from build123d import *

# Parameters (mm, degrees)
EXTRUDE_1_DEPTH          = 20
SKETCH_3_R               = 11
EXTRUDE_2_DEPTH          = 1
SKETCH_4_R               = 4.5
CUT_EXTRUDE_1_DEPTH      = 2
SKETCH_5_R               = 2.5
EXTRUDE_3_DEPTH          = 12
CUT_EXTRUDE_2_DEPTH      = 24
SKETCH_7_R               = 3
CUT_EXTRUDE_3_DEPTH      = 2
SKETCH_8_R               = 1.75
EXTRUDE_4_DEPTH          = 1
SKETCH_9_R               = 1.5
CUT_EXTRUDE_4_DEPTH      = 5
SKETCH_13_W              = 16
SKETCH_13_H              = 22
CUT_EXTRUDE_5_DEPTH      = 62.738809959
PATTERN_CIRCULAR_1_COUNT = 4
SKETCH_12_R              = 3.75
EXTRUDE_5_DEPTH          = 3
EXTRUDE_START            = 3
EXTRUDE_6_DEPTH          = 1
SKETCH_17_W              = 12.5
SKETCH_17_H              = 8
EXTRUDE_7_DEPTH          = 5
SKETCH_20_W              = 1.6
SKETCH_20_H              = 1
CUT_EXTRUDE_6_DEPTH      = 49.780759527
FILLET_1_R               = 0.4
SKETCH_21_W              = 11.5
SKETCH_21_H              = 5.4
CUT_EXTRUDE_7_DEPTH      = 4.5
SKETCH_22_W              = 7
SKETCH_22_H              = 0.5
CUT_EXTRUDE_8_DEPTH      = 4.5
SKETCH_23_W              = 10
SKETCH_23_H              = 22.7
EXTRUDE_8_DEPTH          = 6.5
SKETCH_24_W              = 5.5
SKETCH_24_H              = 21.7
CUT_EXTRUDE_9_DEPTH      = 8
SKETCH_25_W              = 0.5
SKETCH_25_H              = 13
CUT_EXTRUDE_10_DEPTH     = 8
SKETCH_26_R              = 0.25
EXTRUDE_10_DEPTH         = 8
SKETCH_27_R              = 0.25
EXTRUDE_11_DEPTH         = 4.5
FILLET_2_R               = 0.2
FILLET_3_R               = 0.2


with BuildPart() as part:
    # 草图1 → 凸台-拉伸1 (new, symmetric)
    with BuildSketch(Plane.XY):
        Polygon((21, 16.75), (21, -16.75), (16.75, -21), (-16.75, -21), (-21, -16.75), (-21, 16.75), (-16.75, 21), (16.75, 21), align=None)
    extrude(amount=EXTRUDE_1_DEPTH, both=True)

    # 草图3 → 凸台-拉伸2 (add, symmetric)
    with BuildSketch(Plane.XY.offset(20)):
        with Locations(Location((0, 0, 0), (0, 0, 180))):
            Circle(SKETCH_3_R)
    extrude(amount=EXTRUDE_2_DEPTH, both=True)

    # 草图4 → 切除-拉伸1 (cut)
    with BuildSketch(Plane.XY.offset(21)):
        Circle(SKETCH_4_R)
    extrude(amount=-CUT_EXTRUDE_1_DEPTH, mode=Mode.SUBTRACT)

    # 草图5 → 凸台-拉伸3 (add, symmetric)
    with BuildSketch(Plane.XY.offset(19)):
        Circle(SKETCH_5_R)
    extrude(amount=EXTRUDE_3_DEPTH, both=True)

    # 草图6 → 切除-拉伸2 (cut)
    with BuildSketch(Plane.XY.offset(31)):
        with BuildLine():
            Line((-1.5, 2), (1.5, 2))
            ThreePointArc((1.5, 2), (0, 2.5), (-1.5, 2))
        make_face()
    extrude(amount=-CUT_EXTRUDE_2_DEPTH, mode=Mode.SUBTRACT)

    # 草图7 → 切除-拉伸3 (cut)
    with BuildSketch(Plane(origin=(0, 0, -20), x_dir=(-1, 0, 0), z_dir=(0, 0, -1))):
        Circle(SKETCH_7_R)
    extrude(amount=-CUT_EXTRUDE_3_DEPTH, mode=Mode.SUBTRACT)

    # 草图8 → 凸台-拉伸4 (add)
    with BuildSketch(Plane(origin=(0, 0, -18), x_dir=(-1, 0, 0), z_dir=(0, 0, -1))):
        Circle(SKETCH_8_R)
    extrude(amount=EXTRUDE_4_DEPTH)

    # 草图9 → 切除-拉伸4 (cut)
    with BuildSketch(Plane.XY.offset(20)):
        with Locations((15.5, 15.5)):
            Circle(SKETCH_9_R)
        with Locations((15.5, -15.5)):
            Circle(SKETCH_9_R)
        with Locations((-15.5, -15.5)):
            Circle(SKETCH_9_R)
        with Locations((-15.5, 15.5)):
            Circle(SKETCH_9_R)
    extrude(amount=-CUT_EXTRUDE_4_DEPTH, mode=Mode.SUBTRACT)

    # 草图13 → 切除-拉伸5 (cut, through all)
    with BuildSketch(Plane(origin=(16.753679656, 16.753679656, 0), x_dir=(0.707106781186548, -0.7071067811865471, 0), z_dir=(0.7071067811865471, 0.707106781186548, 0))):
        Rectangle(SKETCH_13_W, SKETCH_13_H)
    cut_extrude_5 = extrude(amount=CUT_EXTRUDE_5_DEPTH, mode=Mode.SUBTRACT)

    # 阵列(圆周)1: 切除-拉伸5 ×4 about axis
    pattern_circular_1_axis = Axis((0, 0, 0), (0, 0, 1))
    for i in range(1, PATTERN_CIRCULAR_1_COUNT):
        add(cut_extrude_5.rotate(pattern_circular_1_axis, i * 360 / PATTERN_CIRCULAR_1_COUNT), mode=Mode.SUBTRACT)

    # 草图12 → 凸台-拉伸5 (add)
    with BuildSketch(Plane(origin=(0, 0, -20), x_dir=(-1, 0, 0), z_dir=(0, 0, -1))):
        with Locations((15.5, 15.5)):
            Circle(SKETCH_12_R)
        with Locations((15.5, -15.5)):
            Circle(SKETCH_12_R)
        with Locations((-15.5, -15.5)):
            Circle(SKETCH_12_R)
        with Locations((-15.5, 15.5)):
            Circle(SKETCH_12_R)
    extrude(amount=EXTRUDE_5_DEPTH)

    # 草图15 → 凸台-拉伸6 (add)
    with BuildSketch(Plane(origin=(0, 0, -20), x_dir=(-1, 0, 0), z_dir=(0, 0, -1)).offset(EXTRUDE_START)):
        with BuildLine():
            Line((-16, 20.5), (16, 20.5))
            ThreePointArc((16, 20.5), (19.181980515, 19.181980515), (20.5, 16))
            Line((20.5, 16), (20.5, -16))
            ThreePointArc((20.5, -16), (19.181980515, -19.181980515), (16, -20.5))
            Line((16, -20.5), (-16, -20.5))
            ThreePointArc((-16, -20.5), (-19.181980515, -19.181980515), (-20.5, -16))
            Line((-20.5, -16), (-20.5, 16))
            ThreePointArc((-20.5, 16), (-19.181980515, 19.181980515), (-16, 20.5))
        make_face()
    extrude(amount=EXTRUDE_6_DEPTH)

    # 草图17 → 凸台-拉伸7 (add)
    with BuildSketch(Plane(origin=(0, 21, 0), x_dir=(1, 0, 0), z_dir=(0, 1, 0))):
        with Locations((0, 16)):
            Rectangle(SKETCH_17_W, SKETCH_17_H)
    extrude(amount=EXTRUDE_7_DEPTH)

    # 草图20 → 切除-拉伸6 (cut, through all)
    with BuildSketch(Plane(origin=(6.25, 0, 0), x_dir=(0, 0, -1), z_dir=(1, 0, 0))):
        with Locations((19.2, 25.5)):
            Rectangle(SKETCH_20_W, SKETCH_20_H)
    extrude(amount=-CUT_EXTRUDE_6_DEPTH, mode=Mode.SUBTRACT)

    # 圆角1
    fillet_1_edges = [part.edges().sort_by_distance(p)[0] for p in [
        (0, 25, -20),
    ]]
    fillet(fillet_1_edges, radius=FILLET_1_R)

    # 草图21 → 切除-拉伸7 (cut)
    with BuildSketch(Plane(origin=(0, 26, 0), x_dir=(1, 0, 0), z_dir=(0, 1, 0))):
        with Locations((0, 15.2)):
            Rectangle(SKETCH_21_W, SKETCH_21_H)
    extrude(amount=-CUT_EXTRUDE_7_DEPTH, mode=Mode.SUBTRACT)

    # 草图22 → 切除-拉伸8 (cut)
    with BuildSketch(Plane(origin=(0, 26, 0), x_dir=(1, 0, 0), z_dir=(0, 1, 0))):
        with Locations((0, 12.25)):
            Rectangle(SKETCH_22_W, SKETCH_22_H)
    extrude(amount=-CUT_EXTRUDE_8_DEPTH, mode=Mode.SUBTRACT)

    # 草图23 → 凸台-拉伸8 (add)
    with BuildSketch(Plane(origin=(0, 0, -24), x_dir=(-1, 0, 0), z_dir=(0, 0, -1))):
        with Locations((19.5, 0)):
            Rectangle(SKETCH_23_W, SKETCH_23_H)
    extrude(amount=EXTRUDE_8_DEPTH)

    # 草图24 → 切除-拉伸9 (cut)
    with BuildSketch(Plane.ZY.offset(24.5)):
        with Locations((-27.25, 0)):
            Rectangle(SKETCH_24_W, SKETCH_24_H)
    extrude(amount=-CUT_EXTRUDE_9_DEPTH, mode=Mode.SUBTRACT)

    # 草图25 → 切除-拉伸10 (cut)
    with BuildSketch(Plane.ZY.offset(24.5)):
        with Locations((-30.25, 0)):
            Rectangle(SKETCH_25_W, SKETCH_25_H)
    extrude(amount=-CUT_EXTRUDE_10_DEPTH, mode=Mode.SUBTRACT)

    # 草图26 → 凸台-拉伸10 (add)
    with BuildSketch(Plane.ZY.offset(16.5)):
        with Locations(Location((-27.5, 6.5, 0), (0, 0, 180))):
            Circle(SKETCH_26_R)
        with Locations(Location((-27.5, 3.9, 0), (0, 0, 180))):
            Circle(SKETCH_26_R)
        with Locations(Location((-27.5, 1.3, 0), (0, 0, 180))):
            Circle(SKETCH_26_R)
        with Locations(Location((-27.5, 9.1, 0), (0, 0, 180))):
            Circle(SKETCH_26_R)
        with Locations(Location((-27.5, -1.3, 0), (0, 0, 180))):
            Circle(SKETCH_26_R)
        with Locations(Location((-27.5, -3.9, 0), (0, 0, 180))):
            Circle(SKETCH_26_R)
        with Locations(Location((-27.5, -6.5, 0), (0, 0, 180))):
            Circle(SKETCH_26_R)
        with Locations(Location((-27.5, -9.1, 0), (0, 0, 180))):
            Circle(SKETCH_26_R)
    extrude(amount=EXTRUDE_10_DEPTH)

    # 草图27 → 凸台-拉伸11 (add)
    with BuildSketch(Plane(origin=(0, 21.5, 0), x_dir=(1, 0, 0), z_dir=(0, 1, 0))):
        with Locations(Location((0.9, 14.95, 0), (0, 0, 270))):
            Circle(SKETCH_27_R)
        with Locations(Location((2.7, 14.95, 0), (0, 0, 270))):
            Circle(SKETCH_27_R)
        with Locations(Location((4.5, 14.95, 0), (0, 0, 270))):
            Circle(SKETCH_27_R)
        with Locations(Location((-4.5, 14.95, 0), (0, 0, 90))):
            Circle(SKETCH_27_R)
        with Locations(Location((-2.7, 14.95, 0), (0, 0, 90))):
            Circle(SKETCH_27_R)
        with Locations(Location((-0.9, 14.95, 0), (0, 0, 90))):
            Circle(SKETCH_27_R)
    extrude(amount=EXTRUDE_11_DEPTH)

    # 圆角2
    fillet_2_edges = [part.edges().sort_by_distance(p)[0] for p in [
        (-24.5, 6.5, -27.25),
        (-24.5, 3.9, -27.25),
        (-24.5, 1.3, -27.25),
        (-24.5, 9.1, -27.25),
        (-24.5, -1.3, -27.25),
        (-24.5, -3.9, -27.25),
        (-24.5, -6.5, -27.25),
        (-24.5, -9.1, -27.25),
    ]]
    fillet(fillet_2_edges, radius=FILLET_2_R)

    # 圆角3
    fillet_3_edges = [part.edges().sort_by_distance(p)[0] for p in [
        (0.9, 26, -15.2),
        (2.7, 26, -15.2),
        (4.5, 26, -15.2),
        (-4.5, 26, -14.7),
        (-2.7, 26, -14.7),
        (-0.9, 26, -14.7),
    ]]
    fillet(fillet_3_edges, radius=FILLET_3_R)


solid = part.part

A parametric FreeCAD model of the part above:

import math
import FreeCAD as App
import Part
import Sketcher
from FreeCAD import Vector


def edges_at(feature, points):
    """Names of the edges that pass closest to the given points."""
    edges = feature.Shape.Edges
    near = lambda p: min(range(len(edges)), key=lambda i: edges[i].distToShape(Part.Vertex(*p))[0])
    return sorted({f"Edge{near(p) + 1}" for p in points})

doc = App.newDocument("Part")
body = doc.addObject("PartDesign::Body", "Body")

# Sketch on XY plane
sketch1 = body.newObject("Sketcher::SketchObject", "Sketch")
sketch1.AttachmentSupport = (doc.getObject("XY_Plane"), [""])
sketch1.MapMode = "FlatFace"
sketch1.addGeometry(Part.LineSegment(Vector(21, -17, 0), Vector(21, 17, 0)), False)
sketch1.addGeometry(Part.LineSegment(Vector(21, 17, 0), Vector(17, 21, 0)), False)
sketch1.addGeometry(Part.LineSegment(Vector(17, 21, 0), Vector(-17, 21, 0)), False)
sketch1.addGeometry(Part.LineSegment(Vector(-17, 21, 0), Vector(-21, 17, 0)), False)
sketch1.addGeometry(Part.LineSegment(Vector(-21, 17, 0), Vector(-21, -17, 0)), False)
sketch1.addGeometry(Part.LineSegment(Vector(-21, -17, 0), Vector(-17, -21, 0)), False)
sketch1.addGeometry(Part.LineSegment(Vector(-17, -21, 0), Vector(17, -21, 0)), False)
sketch1.addGeometry(Part.LineSegment(Vector(17, -21, 0), Vector(21, -17, 0)), False)
sketch1.addConstraint(Sketcher.Constraint("Coincident", 0, 2, 1, 1))
sketch1.addConstraint(Sketcher.Constraint("Coincident", 1, 2, 2, 1))
sketch1.addConstraint(Sketcher.Constraint("Coincident", 2, 2, 3, 1))
sketch1.addConstraint(Sketcher.Constraint("Coincident", 3, 2, 4, 1))
sketch1.addConstraint(Sketcher.Constraint("Coincident", 4, 2, 5, 1))
sketch1.addConstraint(Sketcher.Constraint("Coincident", 5, 2, 6, 1))
sketch1.addConstraint(Sketcher.Constraint("Coincident", 6, 2, 7, 1))
sketch1.addConstraint(Sketcher.Constraint("Coincident", 7, 2, 0, 1))
sketch1.addConstraint(Sketcher.Constraint("Vertical", 0))
sketch1.addConstraint(Sketcher.Constraint("Horizontal", 2))
sketch1.addConstraint(Sketcher.Constraint("Vertical", 4))
sketch1.addConstraint(Sketcher.Constraint("Horizontal", 6))
sketch1.addConstraint(Sketcher.Constraint("Symmetric", 0, 2, 4, 2, -1, 1))
sketch1.addConstraint(Sketcher.Constraint("Symmetric", 1, 2, 5, 2, -1, 1))
sketch1.addConstraint(Sketcher.Constraint("Perpendicular", 1, 3))
sketch1.addConstraint(Sketcher.Constraint("Perpendicular", 5, 7))
sketch1.addConstraint(Sketcher.Constraint("Horizontal", 0, 2, 3, 2))
sketch1.addConstraint(Sketcher.Constraint("Horizontal", 4, 2, 7, 2))
sketch1.addConstraint(Sketcher.Constraint("Vertical", 2, 2, 5, 2))
sketch1.addConstraint(Sketcher.Constraint("Equal", 6, 0))
sketch1.addConstraint(Sketcher.Constraint("DistanceX", 2, 2, 2, 1, 33.5))
sketch1.addConstraint(Sketcher.Constraint("DistanceX", -1, 1, 0, 2, 21.0))
pad1 = body.newObject("PartDesign::Pad", "Pad")
pad1.Profile = sketch1
pad1.Length = 40
pad1.Midplane = True

# Sketch on XY plane
sketch2 = body.newObject("Sketcher::SketchObject", "Sketch001")
sketch2.AttachmentSupport = (doc.getObject("XY_Plane"), [""])
sketch2.MapMode = "FlatFace"
sketch2.AttachmentOffset = App.Placement(Vector(0, 0, 20), App.Rotation())
sketch2.addGeometry(Part.Circle(Vector(0, 0, 0), Vector(0, 0, 1), 11), False)
sketch2.addConstraint(Sketcher.Constraint("Coincident", 0, 3, -1, 1))
sketch2.addConstraint(Sketcher.Constraint("Diameter", 0, 22.0))
pad2 = body.newObject("PartDesign::Pad", "Pad001")
pad2.Profile = sketch2
pad2.Length = 2
pad2.Midplane = True

# Sketch on XY plane
sketch3 = body.newObject("Sketcher::SketchObject", "Sketch002")
sketch3.AttachmentSupport = (doc.getObject("XY_Plane"), [""])
sketch3.MapMode = "FlatFace"
sketch3.AttachmentOffset = App.Placement(Vector(0, 0, 21), App.Rotation())
sketch3.addGeometry(Part.Circle(Vector(0, 0, 0), Vector(0, 0, 1), 4.5), False)
sketch3.addConstraint(Sketcher.Constraint("Coincident", 0, 3, -1, 1))
sketch3.addConstraint(Sketcher.Constraint("Diameter", 0, 9.0))
pocket1 = body.newObject("PartDesign::Pocket", "Pocket")
pocket1.Profile = sketch3
pocket1.Length = 2

# Sketch on XY plane
sketch4 = body.newObject("Sketcher::SketchObject", "Sketch003")
sketch4.AttachmentSupport = (doc.getObject("XY_Plane"), [""])
sketch4.MapMode = "FlatFace"
sketch4.AttachmentOffset = App.Placement(Vector(0, 0, 19), App.Rotation())
sketch4.addGeometry(Part.Circle(Vector(0, 0, 0), Vector(0, 0, 1), 2.5), False)
sketch4.addConstraint(Sketcher.Constraint("Coincident", 0, 3, -1, 1))
sketch4.addConstraint(Sketcher.Constraint("Diameter", 0, 5.0))
pad3 = body.newObject("PartDesign::Pad", "Pad002")
pad3.Profile = sketch4
pad3.Length = 24
pad3.Midplane = True

# Sketch on XY plane
sketch5 = body.newObject("Sketcher::SketchObject", "Sketch004")
sketch5.AttachmentSupport = (doc.getObject("XY_Plane"), [""])
sketch5.MapMode = "FlatFace"
sketch5.AttachmentOffset = App.Placement(Vector(0, 0, 31), App.Rotation())
sketch5.addGeometry(Part.LineSegment(Vector(-1.5, 2, 0), Vector(1.5, 2, 0)), False)
sketch5.addGeometry(Part.ArcOfCircle(Part.Circle(Vector(0, 0, 0), Vector(0, 0, 1), 2.5), math.radians(53), math.radians(127)), False)
sketch5.addConstraint(Sketcher.Constraint("Coincident", 0, 1, 1, 2))
sketch5.addConstraint(Sketcher.Constraint("Coincident", 1, 1, 0, 2))
sketch5.addConstraint(Sketcher.Constraint("Horizontal", 0))
sketch5.addConstraint(Sketcher.Constraint("Coincident", 1, 3, -1, 1))
sketch5.addConstraint(Sketcher.Constraint("Radius", 1, 2.5))
sketch5.addConstraint(Sketcher.Constraint("DistanceX", 0, 1, 0, 2, 3.0))
pocket2 = body.newObject("PartDesign::Pocket", "Pocket001")
pocket2.Profile = sketch5
pocket2.Length = 24

# Sketch on XY plane
sketch6 = body.newObject("Sketcher::SketchObject", "Sketch005")
sketch6.AttachmentSupport = (doc.getObject("XY_Plane"), [""])
sketch6.MapMode = "FlatFace"
sketch6.AttachmentOffset = App.Placement(Vector(0, 0, -20), App.Rotation())
sketch6.addGeometry(Part.Circle(Vector(0, 0, 0), Vector(0, 0, 1), 3), False)
sketch6.addConstraint(Sketcher.Constraint("Coincident", 0, 3, -1, 1))
sketch6.addConstraint(Sketcher.Constraint("Diameter", 0, 6.0))
pocket3 = body.newObject("PartDesign::Pocket", "Pocket002")
pocket3.Profile = sketch6
pocket3.Length = 2
pocket3.Reversed = True

# Sketch on XY plane
sketch7 = body.newObject("Sketcher::SketchObject", "Sketch006")
sketch7.AttachmentSupport = (doc.getObject("XY_Plane"), [""])
sketch7.MapMode = "FlatFace"
sketch7.AttachmentOffset = App.Placement(Vector(0, 0, -18), App.Rotation())
sketch7.addGeometry(Part.Circle(Vector(0, 0, 0), Vector(0, 0, 1), 1.8), False)
sketch7.addConstraint(Sketcher.Constraint("Coincident", 0, 3, -1, 1))
sketch7.addConstraint(Sketcher.Constraint("Diameter", 0, 3.5))
pad4 = body.newObject("PartDesign::Pad", "Pad003")
pad4.Profile = sketch7
pad4.Length = 1
pad4.Reversed = True

# Sketch on XY plane
sketch8 = body.newObject("Sketcher::SketchObject", "Sketch007")
sketch8.AttachmentSupport = (doc.getObject("XY_Plane"), [""])
sketch8.MapMode = "FlatFace"
sketch8.AttachmentOffset = App.Placement(Vector(0, 0, 20), App.Rotation())
sketch8.addGeometry(Part.Circle(Vector(15.5, 15.5, 0), Vector(0, 0, 1), 1.5), False)
sketch8.addGeometry(Part.Circle(Vector(15.5, -15.5, 0), Vector(0, 0, 1), 1.5), False)
sketch8.addGeometry(Part.Circle(Vector(-15.5, -15.5, 0), Vector(0, 0, 1), 1.5), False)
sketch8.addGeometry(Part.Circle(Vector(-15.5, 15.5, 0), Vector(0, 0, 1), 1.5), False)
sketch8.addConstraint(Sketcher.Constraint("Equal", 0, 1))
sketch8.addConstraint(Sketcher.Constraint("Equal", 1, 2))
sketch8.addConstraint(Sketcher.Constraint("Equal", 2, 3))
sketch8.addConstraint(Sketcher.Constraint("Symmetric", 0, 3, 2, 3, -1, 1))
sketch8.addConstraint(Sketcher.Constraint("Symmetric", 1, 3, 3, 3, -1, 1))
sketch8.addConstraint(Sketcher.Constraint("Symmetric", 1, 3, 2, 3, -2))
sketch8.addConstraint(Sketcher.Constraint("Diameter", 0, 3.0))
sketch8.addConstraint(Sketcher.Constraint("DistanceY", 1, 3, 0, 3, 31.0))
sketch8.addConstraint(Sketcher.Constraint("DistanceX", 2, 3, 1, 3, 31.0))
pocket4 = body.newObject("PartDesign::Pocket", "Pocket003")
pocket4.Profile = sketch8
pocket4.Length = 5

# Sketch on an angled plane
sketch9 = body.newObject("Sketcher::SketchObject", "Sketch008")
sketch9.Placement = App.Placement(Vector(16.75368, 16.75368, 0), App.Rotation(Vector(0.707106781, -0.707106781, 0), Vector(0, 0, -0.999999999), Vector(0.707106781, 0.707106781, 0), "ZXY"))
sketch9.addGeometry(Part.LineSegment(Vector(-8, 11, 0), Vector(-8, -11, 0)), False)
sketch9.addGeometry(Part.LineSegment(Vector(-8, -11, 0), Vector(8, -11, 0)), False)
sketch9.addGeometry(Part.LineSegment(Vector(8, -11, 0), Vector(8, 11, 0)), False)
sketch9.addGeometry(Part.LineSegment(Vector(8, 11, 0), Vector(-8, 11, 0)), False)
sketch9.addConstraint(Sketcher.Constraint("Coincident", 0, 2, 1, 1))
sketch9.addConstraint(Sketcher.Constraint("Coincident", 1, 2, 2, 1))
sketch9.addConstraint(Sketcher.Constraint("Coincident", 2, 2, 3, 1))
sketch9.addConstraint(Sketcher.Constraint("Coincident", 3, 2, 0, 1))
sketch9.addConstraint(Sketcher.Constraint("Vertical", 0))
sketch9.addConstraint(Sketcher.Constraint("Horizontal", 1))
sketch9.addConstraint(Sketcher.Constraint("Vertical", 2))
sketch9.addConstraint(Sketcher.Constraint("Horizontal", 3))
sketch9.addConstraint(Sketcher.Constraint("Symmetric", 0, 2, 2, 2, -1, 1))
sketch9.addConstraint(Sketcher.Constraint("DistanceX", 1, 1, 1, 2, 16.0))
sketch9.addConstraint(Sketcher.Constraint("DistanceY", 0, 2, 0, 1, 22.0))
pocket5 = body.newObject("PartDesign::Pocket", "Pocket004")
pocket5.Profile = sketch9
pocket5.Type = "ThroughAll"
pocket5.Reversed = True
doc.recompute()

polarpattern = body.newObject("PartDesign::PolarPattern", "PolarPattern")
polarpattern.Originals = [pocket5]
polarpattern.Axis = (doc.getObject("Z_Axis"), [""])
polarpattern.Angle = 360
polarpattern.Occurrences = 4
body.Tip = polarpattern

# Sketch on XY plane
sketch10 = body.newObject("Sketcher::SketchObject", "Sketch009")
sketch10.AttachmentSupport = (doc.getObject("XY_Plane"), [""])
sketch10.MapMode = "FlatFace"
sketch10.AttachmentOffset = App.Placement(Vector(0, 0, -20), App.Rotation())
sketch10.addGeometry(Part.Circle(Vector(-15.5, 15.5, 0), Vector(0, 0, 1), 3.8), False)
sketch10.addGeometry(Part.Circle(Vector(-15.5, -15.5, 0), Vector(0, 0, 1), 3.8), False)
sketch10.addGeometry(Part.Circle(Vector(15.5, -15.5, 0), Vector(0, 0, 1), 3.8), False)
sketch10.addGeometry(Part.Circle(Vector(15.5, 15.5, 0), Vector(0, 0, 1), 3.8), False)
sketch10.addConstraint(Sketcher.Constraint("Equal", 0, 1))
sketch10.addConstraint(Sketcher.Constraint("Equal", 1, 2))
sketch10.addConstraint(Sketcher.Constraint("Equal", 2, 3))
sketch10.addConstraint(Sketcher.Constraint("Symmetric", 0, 3, 2, 3, -1, 1))
sketch10.addConstraint(Sketcher.Constraint("Symmetric", 1, 3, 3, 3, -1, 1))
sketch10.addConstraint(Sketcher.Constraint("Symmetric", 1, 3, 2, 3, -2))
sketch10.addConstraint(Sketcher.Constraint("Diameter", 0, 7.5))
sketch10.addConstraint(Sketcher.Constraint("DistanceY", 1, 3, 0, 3, 31.0))
sketch10.addConstraint(Sketcher.Constraint("DistanceX", 1, 3, 2, 3, 31.0))
pad5 = body.newObject("PartDesign::Pad", "Pad004")
pad5.Profile = sketch10
pad5.Length = 3
pad5.Reversed = True

# Sketch on XY plane
sketch11 = body.newObject("Sketcher::SketchObject", "Sketch010")
sketch11.AttachmentSupport = (doc.getObject("XY_Plane"), [""])
sketch11.MapMode = "FlatFace"
sketch11.AttachmentOffset = App.Placement(Vector(0, 0, -23), App.Rotation())
sketch11.addGeometry(Part.LineSegment(Vector(-16, 20.5, 0), Vector(16, 20.5, 0)), False)
sketch11.addGeometry(Part.ArcOfCircle(Part.Circle(Vector(16, 16, 0), Vector(0, 0, 1), 4.5), math.radians(0), math.radians(90)), False)
sketch11.addGeometry(Part.LineSegment(Vector(20.5, 16, 0), Vector(20.5, -16, 0)), False)
sketch11.addGeometry(Part.ArcOfCircle(Part.Circle(Vector(16, -16, 0), Vector(0, 0, 1), 4.5), math.radians(-90), math.radians(0)), False)
sketch11.addGeometry(Part.LineSegment(Vector(16, -20.5, 0), Vector(-16, -20.5, 0)), False)
sketch11.addGeometry(Part.ArcOfCircle(Part.Circle(Vector(-16, -16, 0), Vector(0, 0, 1), 4.5), math.radians(-180), math.radians(-90)), False)
sketch11.addGeometry(Part.LineSegment(Vector(-20.5, -16, 0), Vector(-20.5, 16, 0)), False)
sketch11.addGeometry(Part.ArcOfCircle(Part.Circle(Vector(-16, 16, 0), Vector(0, 0, 1), 4.5), math.radians(90), math.radians(180)), False)
sketch11.addConstraint(Sketcher.Constraint("Tangent", 0, 2, 1, 2))
sketch11.addConstraint(Sketcher.Constraint("Tangent", 1, 1, 2, 1))
sketch11.addConstraint(Sketcher.Constraint("Tangent", 2, 2, 3, 2))
sketch11.addConstraint(Sketcher.Constraint("Tangent", 3, 1, 4, 1))
sketch11.addConstraint(Sketcher.Constraint("Tangent", 4, 2, 5, 2))
sketch11.addConstraint(Sketcher.Constraint("Tangent", 5, 1, 6, 1))
sketch11.addConstraint(Sketcher.Constraint("Tangent", 6, 2, 7, 2))
sketch11.addConstraint(Sketcher.Constraint("Tangent", 7, 1, 0, 1))
sketch11.addConstraint(Sketcher.Constraint("Horizontal", 0))
sketch11.addConstraint(Sketcher.Constraint("Vertical", 2))
sketch11.addConstraint(Sketcher.Constraint("Horizontal", 4))
sketch11.addConstraint(Sketcher.Constraint("Vertical", 6))
sketch11.addConstraint(Sketcher.Constraint("Equal", 1, 3))
sketch11.addConstraint(Sketcher.Constraint("Equal", 3, 5))
sketch11.addConstraint(Sketcher.Constraint("Equal", 5, 7))
sketch11.addConstraint(Sketcher.Constraint("Symmetric", 1, 3, 5, 3, -1, 1))
sketch11.addConstraint(Sketcher.Constraint("Equal", 4, 2))
sketch11.addConstraint(Sketcher.Constraint("Radius", 1, 4.5))
sketch11.addConstraint(Sketcher.Constraint("DistanceX", 0, 1, 0, 2, 32.0))
pad6 = body.newObject("PartDesign::Pad", "Pad005")
pad6.Profile = sketch11
pad6.Length = 1
pad6.Reversed = True

# Sketch on XZ plane
sketch12 = body.newObject("Sketcher::SketchObject", "Sketch011")
sketch12.AttachmentSupport = (doc.getObject("XZ_Plane"), [""])
sketch12.MapMode = "FlatFace"
sketch12.AttachmentOffset = App.Placement(Vector(0, 0, -21), App.Rotation())
sketch12.addGeometry(Part.LineSegment(Vector(-6, -20, 0), Vector(-6, -12, 0)), False)
sketch12.addGeometry(Part.LineSegment(Vector(-6, -12, 0), Vector(6, -12, 0)), False)
sketch12.addGeometry(Part.LineSegment(Vector(6, -12, 0), Vector(6, -20, 0)), False)
sketch12.addGeometry(Part.LineSegment(Vector(6, -20, 0), Vector(-6, -20, 0)), False)
sketch12.addConstraint(Sketcher.Constraint("Coincident", 0, 2, 1, 1))
sketch12.addConstraint(Sketcher.Constraint("Coincident", 1, 2, 2, 1))
sketch12.addConstraint(Sketcher.Constraint("Coincident", 2, 2, 3, 1))
sketch12.addConstraint(Sketcher.Constraint("Coincident", 3, 2, 0, 1))
sketch12.addConstraint(Sketcher.Constraint("Vertical", 0))
sketch12.addConstraint(Sketcher.Constraint("Horizontal", 1))
sketch12.addConstraint(Sketcher.Constraint("Vertical", 2))
sketch12.addConstraint(Sketcher.Constraint("Horizontal", 3))
sketch12.addConstraint(Sketcher.Constraint("DistanceY", 0, 1, 0, 2, 8.0))
sketch12.addConstraint(Sketcher.Constraint("DistanceX", 1, 1, 1, 2, 12.5))
sketch12.addConstraint(Sketcher.Constraint("DistanceY", 0, 2, -1, 1, 12.0))
sketch12.addConstraint(Sketcher.Constraint("DistanceX", 0, 2, -1, 1, 6.25))
pad7 = body.newObject("PartDesign::Pad", "Pad006")
pad7.Profile = sketch12
pad7.Length = 5
pad7.Reversed = True

# Sketch on YZ plane
sketch13 = body.newObject("Sketcher::SketchObject", "Sketch012")
sketch13.AttachmentSupport = (doc.getObject("YZ_Plane"), [""])
sketch13.MapMode = "FlatFace"
sketch13.AttachmentOffset = App.Placement(Vector(0, 0, 6.25), App.Rotation())
sketch13.addGeometry(Part.LineSegment(Vector(26, -18.4, 0), Vector(25, -18.4, 0)), False)
sketch13.addGeometry(Part.LineSegment(Vector(25, -18.4, 0), Vector(25, -20, 0)), False)
sketch13.addGeometry(Part.LineSegment(Vector(25, -20, 0), Vector(26, -20, 0)), False)
sketch13.addGeometry(Part.LineSegment(Vector(26, -20, 0), Vector(26, -18.4, 0)), False)
sketch13.addConstraint(Sketcher.Constraint("Coincident", 0, 2, 1, 1))
sketch13.addConstraint(Sketcher.Constraint("Coincident", 1, 2, 2, 1))
sketch13.addConstraint(Sketcher.Constraint("Coincident", 2, 2, 3, 1))
sketch13.addConstraint(Sketcher.Constraint("Coincident", 3, 2, 0, 1))
sketch13.addConstraint(Sketcher.Constraint("Horizontal", 0))
sketch13.addConstraint(Sketcher.Constraint("Vertical", 1))
sketch13.addConstraint(Sketcher.Constraint("Horizontal", 2))
sketch13.addConstraint(Sketcher.Constraint("Vertical", 3))
sketch13.addConstraint(Sketcher.Constraint("DistanceX", 0, 2, 0, 1, 1.0))
sketch13.addConstraint(Sketcher.Constraint("DistanceY", 1, 2, 1, 1, 1.6))
sketch13.addConstraint(Sketcher.Constraint("DistanceX", -1, 1, 0, 2, 25.0))
sketch13.addConstraint(Sketcher.Constraint("DistanceY", 1, 2, -1, 1, 20.0))
pocket6 = body.newObject("PartDesign::Pocket", "Pocket005")
pocket6.Profile = sketch13
pocket6.Type = "ThroughAll"
doc.recompute()

fillet = body.newObject("PartDesign::Fillet", "Fillet")
fillet.Base = (pocket6, edges_at(pocket6, [(0, 25, -20)]))
fillet.Radius = 0.4

# Sketch on XZ plane
sketch14 = body.newObject("Sketcher::SketchObject", "Sketch013")
sketch14.AttachmentSupport = (doc.getObject("XZ_Plane"), [""])
sketch14.MapMode = "FlatFace"
sketch14.AttachmentOffset = App.Placement(Vector(0, 0, -26), App.Rotation())
sketch14.addGeometry(Part.LineSegment(Vector(-6, -18, 0), Vector(-6, -12, 0)), False)
sketch14.addGeometry(Part.LineSegment(Vector(-6, -12, 0), Vector(6, -12, 0)), False)
sketch14.addGeometry(Part.LineSegment(Vector(6, -12, 0), Vector(6, -18, 0)), False)
sketch14.addGeometry(Part.LineSegment(Vector(6, -18, 0), Vector(-6, -18, 0)), False)
sketch14.addConstraint(Sketcher.Constraint("Coincident", 0, 2, 1, 1))
sketch14.addConstraint(Sketcher.Constraint("Coincident", 1, 2, 2, 1))
sketch14.addConstraint(Sketcher.Constraint("Coincident", 2, 2, 3, 1))
sketch14.addConstraint(Sketcher.Constraint("Coincident", 3, 2, 0, 1))
sketch14.addConstraint(Sketcher.Constraint("Vertical", 0))
sketch14.addConstraint(Sketcher.Constraint("Horizontal", 1))
sketch14.addConstraint(Sketcher.Constraint("Vertical", 2))
sketch14.addConstraint(Sketcher.Constraint("Horizontal", 3))
sketch14.addConstraint(Sketcher.Constraint("DistanceX", 1, 1, 1, 2, 11.5))
sketch14.addConstraint(Sketcher.Constraint("DistanceY", 0, 1, 0, 2, 5.4))
sketch14.addConstraint(Sketcher.Constraint("DistanceY", 0, 2, -1, 1, 12.5))
sketch14.addConstraint(Sketcher.Constraint("DistanceX", 0, 2, -1, 1, 5.75))
pocket7 = body.newObject("PartDesign::Pocket", "Pocket006")
pocket7.Profile = sketch14
pocket7.Length = 4.5
pocket7.Reversed = True

# Sketch on XZ plane
sketch15 = body.newObject("Sketcher::SketchObject", "Sketch014")
sketch15.AttachmentSupport = (doc.getObject("XZ_Plane"), [""])
sketch15.MapMode = "FlatFace"
sketch15.AttachmentOffset = App.Placement(Vector(0, 0, -26), App.Rotation())
sketch15.addGeometry(Part.LineSegment(Vector(-3.5, -12.5, 0), Vector(-3.5, -12, 0)), False)
sketch15.addGeometry(Part.LineSegment(Vector(-3.5, -12, 0), Vector(3.5, -12, 0)), False)
sketch15.addGeometry(Part.LineSegment(Vector(3.5, -12, 0), Vector(3.5, -12.5, 0)), False)
sketch15.addGeometry(Part.LineSegment(Vector(3.5, -12.5, 0), Vector(-3.5, -12.5, 0)), False)
sketch15.addConstraint(Sketcher.Constraint("Coincident", 0, 2, 1, 1))
sketch15.addConstraint(Sketcher.Constraint("Coincident", 1, 2, 2, 1))
sketch15.addConstraint(Sketcher.Constraint("Coincident", 2, 2, 3, 1))
sketch15.addConstraint(Sketcher.Constraint("Coincident", 3, 2, 0, 1))
sketch15.addConstraint(Sketcher.Constraint("Vertical", 0))
sketch15.addConstraint(Sketcher.Constraint("Horizontal", 1))
sketch15.addConstraint(Sketcher.Constraint("Vertical", 2))
sketch15.addConstraint(Sketcher.Constraint("Horizontal", 3))
sketch15.addConstraint(Sketcher.Constraint("DistanceX", 1, 1, 1, 2, 7.0))
sketch15.addConstraint(Sketcher.Constraint("DistanceY", 0, 1, 0, 2, 0.5))
sketch15.addConstraint(Sketcher.Constraint("DistanceY", 0, 2, -1, 1, 12.0))
sketch15.addConstraint(Sketcher.Constraint("DistanceX", 0, 2, -1, 1, 3.5))
pocket8 = body.newObject("PartDesign::Pocket", "Pocket007")
pocket8.Profile = sketch15
pocket8.Length = 4.5
pocket8.Reversed = True

# Sketch on XY plane
sketch16 = body.newObject("Sketcher::SketchObject", "Sketch015")
sketch16.AttachmentSupport = (doc.getObject("XY_Plane"), [""])
sketch16.MapMode = "FlatFace"
sketch16.AttachmentOffset = App.Placement(Vector(0, 0, -24), App.Rotation())
sketch16.addGeometry(Part.LineSegment(Vector(-14, 11, 0), Vector(-14, -11, 0)), False)
sketch16.addGeometry(Part.LineSegment(Vector(-14, -11, 0), Vector(-24, -11, 0)), False)
sketch16.addGeometry(Part.LineSegment(Vector(-24, -11, 0), Vector(-24, 11, 0)), False)
sketch16.addGeometry(Part.LineSegment(Vector(-24, 11, 0), Vector(-14, 11, 0)), False)
sketch16.addConstraint(Sketcher.Constraint("Coincident", 0, 2, 1, 1))
sketch16.addConstraint(Sketcher.Constraint("Coincident", 1, 2, 2, 1))
sketch16.addConstraint(Sketcher.Constraint("Coincident", 2, 2, 3, 1))
sketch16.addConstraint(Sketcher.Constraint("Coincident", 3, 2, 0, 1))
sketch16.addConstraint(Sketcher.Constraint("Vertical", 0))
sketch16.addConstraint(Sketcher.Constraint("Horizontal", 1))
sketch16.addConstraint(Sketcher.Constraint("Vertical", 2))
sketch16.addConstraint(Sketcher.Constraint("Horizontal", 3))
sketch16.addConstraint(Sketcher.Constraint("DistanceX", 1, 2, 1, 1, 10.0))
sketch16.addConstraint(Sketcher.Constraint("DistanceY", 0, 2, 0, 1, 22.7))
sketch16.addConstraint(Sketcher.Constraint("DistanceX", 0, 2, -1, 1, 14.5))
sketch16.addConstraint(Sketcher.Constraint("DistanceY", 0, 2, -1, 1, 11.35))
pad8 = body.newObject("PartDesign::Pad", "Pad007")
pad8.Profile = sketch16
pad8.Length = 6.5
pad8.Reversed = True

# Sketch on YZ plane
sketch17 = body.newObject("Sketcher::SketchObject", "Sketch016")
sketch17.AttachmentSupport = (doc.getObject("YZ_Plane"), [""])
sketch17.MapMode = "FlatFace"
sketch17.AttachmentOffset = App.Placement(Vector(0, 0, -24.5), App.Rotation())
sketch17.addGeometry(Part.LineSegment(Vector(11, -30, 0), Vector(-11, -30, 0)), False)
sketch17.addGeometry(Part.LineSegment(Vector(-11, -30, 0), Vector(-11, -24, 0)), False)
sketch17.addGeometry(Part.LineSegment(Vector(-11, -24, 0), Vector(11, -24, 0)), False)
sketch17.addGeometry(Part.LineSegment(Vector(11, -24, 0), Vector(11, -30, 0)), False)
sketch17.addConstraint(Sketcher.Constraint("Coincident", 0, 2, 1, 1))
sketch17.addConstraint(Sketcher.Constraint("Coincident", 1, 2, 2, 1))
sketch17.addConstraint(Sketcher.Constraint("Coincident", 2, 2, 3, 1))
sketch17.addConstraint(Sketcher.Constraint("Coincident", 3, 2, 0, 1))
sketch17.addConstraint(Sketcher.Constraint("Horizontal", 0))
sketch17.addConstraint(Sketcher.Constraint("Vertical", 1))
sketch17.addConstraint(Sketcher.Constraint("Horizontal", 2))
sketch17.addConstraint(Sketcher.Constraint("Vertical", 3))
sketch17.addConstraint(Sketcher.Constraint("DistanceX", 0, 2, 0, 1, 21.7))
sketch17.addConstraint(Sketcher.Constraint("DistanceY", 1, 1, 1, 2, 5.5))
sketch17.addConstraint(Sketcher.Constraint("DistanceY", 0, 2, -1, 1, 30.0))
sketch17.addConstraint(Sketcher.Constraint("DistanceX", 0, 2, -1, 1, 10.85))
pocket9 = body.newObject("PartDesign::Pocket", "Pocket008")
pocket9.Profile = sketch17
pocket9.Length = 8
pocket9.Reversed = True

# Sketch on YZ plane
sketch18 = body.newObject("Sketcher::SketchObject", "Sketch017")
sketch18.AttachmentSupport = (doc.getObject("YZ_Plane"), [""])
sketch18.MapMode = "FlatFace"
sketch18.AttachmentOffset = App.Placement(Vector(0, 0, -24.5), App.Rotation())
sketch18.addGeometry(Part.LineSegment(Vector(6.5, -30.5, 0), Vector(-6.5, -30.5, 0)), False)
sketch18.addGeometry(Part.LineSegment(Vector(-6.5, -30.5, 0), Vector(-6.5, -30, 0)), False)
sketch18.addGeometry(Part.LineSegment(Vector(-6.5, -30, 0), Vector(6.5, -30, 0)), False)
sketch18.addGeometry(Part.LineSegment(Vector(6.5, -30, 0), Vector(6.5, -30.5, 0)), False)
sketch18.addConstraint(Sketcher.Constraint("Coincident", 0, 2, 1, 1))
sketch18.addConstraint(Sketcher.Constraint("Coincident", 1, 2, 2, 1))
sketch18.addConstraint(Sketcher.Constraint("Coincident", 2, 2, 3, 1))
sketch18.addConstraint(Sketcher.Constraint("Coincident", 3, 2, 0, 1))
sketch18.addConstraint(Sketcher.Constraint("Horizontal", 0))
sketch18.addConstraint(Sketcher.Constraint("Vertical", 1))
sketch18.addConstraint(Sketcher.Constraint("Horizontal", 2))
sketch18.addConstraint(Sketcher.Constraint("Vertical", 3))
sketch18.addConstraint(Sketcher.Constraint("DistanceX", 0, 2, 0, 1, 13.0))
sketch18.addConstraint(Sketcher.Constraint("DistanceY", 1, 1, 1, 2, 0.5))
sketch18.addConstraint(Sketcher.Constraint("DistanceY", 1, 2, -1, 1, 30.0))
sketch18.addConstraint(Sketcher.Constraint("DistanceX", 0, 2, -1, 1, 6.5))
pocket10 = body.newObject("PartDesign::Pocket", "Pocket009")
pocket10.Profile = sketch18
pocket10.Length = 8
pocket10.Reversed = True

# Sketch on YZ plane
sketch19 = body.newObject("Sketcher::SketchObject", "Sketch018")
sketch19.AttachmentSupport = (doc.getObject("YZ_Plane"), [""])
sketch19.MapMode = "FlatFace"
sketch19.AttachmentOffset = App.Placement(Vector(0, 0, -16.5), App.Rotation())
sketch19.addGeometry(Part.Circle(Vector(6.5, -27.5, 0), Vector(0, 0, 1), 0.25), False)
sketch19.addGeometry(Part.Circle(Vector(3.9, -27.5, 0), Vector(0, 0, 1), 0.25), False)
sketch19.addGeometry(Part.Circle(Vector(1.3, -27.5, 0), Vector(0, 0, 1), 0.25), False)
sketch19.addGeometry(Part.Circle(Vector(9.1, -27.5, 0), Vector(0, 0, 1), 0.25), False)
sketch19.addGeometry(Part.Circle(Vector(-1.3, -27.5, 0), Vector(0, 0, 1), 0.25), False)
sketch19.addGeometry(Part.Circle(Vector(-3.9, -27.5, 0), Vector(0, 0, 1), 0.25), False)
sketch19.addGeometry(Part.Circle(Vector(-6.5, -27.5, 0), Vector(0, 0, 1), 0.25), False)
sketch19.addGeometry(Part.Circle(Vector(-9.1, -27.5, 0), Vector(0, 0, 1), 0.25), False)
sketch19.addConstraint(Sketcher.Constraint("Equal", 0, 1))
sketch19.addConstraint(Sketcher.Constraint("Equal", 1, 2))
sketch19.addConstraint(Sketcher.Constraint("Equal", 2, 3))
sketch19.addConstraint(Sketcher.Constraint("Equal", 3, 4))
sketch19.addConstraint(Sketcher.Constraint("Equal", 4, 5))
sketch19.addConstraint(Sketcher.Constraint("Equal", 5, 6))
sketch19.addConstraint(Sketcher.Constraint("Equal", 6, 7))
sketch19.addConstraint(Sketcher.Constraint("Symmetric", 2, 3, 4, 3, -2))
sketch19.addConstraint(Sketcher.Constraint("Symmetric", 1, 3, 5, 3, -2))
sketch19.addConstraint(Sketcher.Constraint("Symmetric", 0, 3, 6, 3, -2))
sketch19.addConstraint(Sketcher.Constraint("Symmetric", 3, 3, 7, 3, -2))
sketch19.addConstraint(Sketcher.Constraint("Horizontal", 0, 3, 1, 3))
sketch19.addConstraint(Sketcher.Constraint("Horizontal", 1, 3, 2, 3))
sketch19.addConstraint(Sketcher.Constraint("Horizontal", 2, 3, 3, 3))
sketch19.addConstraint(Sketcher.Constraint("Diameter", 0, 0.5))
sketch19.addConstraint(Sketcher.Constraint("DistanceX", 5, 3, 3, 3, 13.0))
sketch19.addConstraint(Sketcher.Constraint("DistanceX", 6, 3, 0, 3, 13.0))
sketch19.addConstraint(Sketcher.Constraint("DistanceY", 0, 3, -1, 1, 27.5))
sketch19.addConstraint(Sketcher.Constraint("DistanceX", -1, 1, 1, 3, 3.9))
sketch19.addConstraint(Sketcher.Constraint("DistanceX", -1, 1, 2, 3, 1.3))
pad9 = body.newObject("PartDesign::Pad", "Pad008")
pad9.Profile = sketch19
pad9.Length = 8
pad9.Reversed = True

# Sketch on XZ plane
sketch20 = body.newObject("Sketcher::SketchObject", "Sketch019")
sketch20.AttachmentSupport = (doc.getObject("XZ_Plane"), [""])
sketch20.MapMode = "FlatFace"
sketch20.AttachmentOffset = App.Placement(Vector(0, 0, -21.5), App.Rotation())
sketch20.addGeometry(Part.Circle(Vector(0.9, -14.95, 0), Vector(0, 0, 1), 0.25), False)
sketch20.addGeometry(Part.Circle(Vector(2.7, -14.95, 0), Vector(0, 0, 1), 0.25), False)
sketch20.addGeometry(Part.Circle(Vector(4.5, -14.95, 0), Vector(0, 0, 1), 0.25), False)
sketch20.addGeometry(Part.Circle(Vector(-4.5, -14.95, 0), Vector(0, 0, 1), 0.25), False)
sketch20.addGeometry(Part.Circle(Vector(-2.7, -14.95, 0), Vector(0, 0, 1), 0.25), False)
sketch20.addGeometry(Part.Circle(Vector(-0.9, -14.95, 0), Vector(0, 0, 1), 0.25), False)
sketch20.addConstraint(Sketcher.Constraint("Equal", 0, 1))
sketch20.addConstraint(Sketcher.Constraint("Equal", 1, 2))
sketch20.addConstraint(Sketcher.Constraint("Equal", 2, 3))
sketch20.addConstraint(Sketcher.Constraint("Equal", 3, 4))
sketch20.addConstraint(Sketcher.Constraint("Equal", 4, 5))
sketch20.addConstraint(Sketcher.Constraint("Symmetric", 2, 3, 3, 3, -2))
sketch20.addConstraint(Sketcher.Constraint("Symmetric", 1, 3, 4, 3, -2))
sketch20.addConstraint(Sketcher.Constraint("Symmetric", 0, 3, 5, 3, -2))
sketch20.addConstraint(Sketcher.Constraint("Horizontal", 0, 3, 1, 3))
sketch20.addConstraint(Sketcher.Constraint("Horizontal", 1, 3, 2, 3))
sketch20.addConstraint(Sketcher.Constraint("Diameter", 0, 0.5))
sketch20.addConstraint(Sketcher.Constraint("DistanceX", 3, 3, 2, 3, 9.0))
sketch20.addConstraint(Sketcher.Constraint("DistanceX", -1, 1, 0, 3, 0.9))
sketch20.addConstraint(Sketcher.Constraint("DistanceX", -1, 1, 1, 3, 2.7))
sketch20.addConstraint(Sketcher.Constraint("DistanceY", 0, 3, -1, 1, 14.95))
pad10 = body.newObject("PartDesign::Pad", "Pad009")
pad10.Profile = sketch20
pad10.Length = 4.5
pad10.Reversed = True
doc.recompute()

fillet2 = body.newObject("PartDesign::Fillet", "Fillet001")
fillet2.Base = (pad10, edges_at(pad10, [
    (-24.5, 6.5, -27.25),
    (-24.5, 3.9, -27.25),
    (-24.5, 1.3, -27.25),
    (-24.5, 9.1, -27.25),
    (-24.5, -1.3, -27.25),
    (-24.5, -3.9, -27.25),
    (-24.5, -6.5, -27.25),
    (-24.5, -9.1, -27.25),
]))
fillet2.Radius = 0.2
doc.recompute()

fillet3 = body.newObject("PartDesign::Fillet", "Fillet002")
fillet3.Base = (fillet2, edges_at(fillet2, [
    (0.9, 26, -15.2),
    (2.7, 26, -15.2),
    (4.5, 26, -15.2),
    (-4.5, 26, -14.7),
    (-2.7, 26, -14.7),
    (-0.9, 26, -14.7),
]))
fillet3.Radius = 0.2

doc.recompute()
